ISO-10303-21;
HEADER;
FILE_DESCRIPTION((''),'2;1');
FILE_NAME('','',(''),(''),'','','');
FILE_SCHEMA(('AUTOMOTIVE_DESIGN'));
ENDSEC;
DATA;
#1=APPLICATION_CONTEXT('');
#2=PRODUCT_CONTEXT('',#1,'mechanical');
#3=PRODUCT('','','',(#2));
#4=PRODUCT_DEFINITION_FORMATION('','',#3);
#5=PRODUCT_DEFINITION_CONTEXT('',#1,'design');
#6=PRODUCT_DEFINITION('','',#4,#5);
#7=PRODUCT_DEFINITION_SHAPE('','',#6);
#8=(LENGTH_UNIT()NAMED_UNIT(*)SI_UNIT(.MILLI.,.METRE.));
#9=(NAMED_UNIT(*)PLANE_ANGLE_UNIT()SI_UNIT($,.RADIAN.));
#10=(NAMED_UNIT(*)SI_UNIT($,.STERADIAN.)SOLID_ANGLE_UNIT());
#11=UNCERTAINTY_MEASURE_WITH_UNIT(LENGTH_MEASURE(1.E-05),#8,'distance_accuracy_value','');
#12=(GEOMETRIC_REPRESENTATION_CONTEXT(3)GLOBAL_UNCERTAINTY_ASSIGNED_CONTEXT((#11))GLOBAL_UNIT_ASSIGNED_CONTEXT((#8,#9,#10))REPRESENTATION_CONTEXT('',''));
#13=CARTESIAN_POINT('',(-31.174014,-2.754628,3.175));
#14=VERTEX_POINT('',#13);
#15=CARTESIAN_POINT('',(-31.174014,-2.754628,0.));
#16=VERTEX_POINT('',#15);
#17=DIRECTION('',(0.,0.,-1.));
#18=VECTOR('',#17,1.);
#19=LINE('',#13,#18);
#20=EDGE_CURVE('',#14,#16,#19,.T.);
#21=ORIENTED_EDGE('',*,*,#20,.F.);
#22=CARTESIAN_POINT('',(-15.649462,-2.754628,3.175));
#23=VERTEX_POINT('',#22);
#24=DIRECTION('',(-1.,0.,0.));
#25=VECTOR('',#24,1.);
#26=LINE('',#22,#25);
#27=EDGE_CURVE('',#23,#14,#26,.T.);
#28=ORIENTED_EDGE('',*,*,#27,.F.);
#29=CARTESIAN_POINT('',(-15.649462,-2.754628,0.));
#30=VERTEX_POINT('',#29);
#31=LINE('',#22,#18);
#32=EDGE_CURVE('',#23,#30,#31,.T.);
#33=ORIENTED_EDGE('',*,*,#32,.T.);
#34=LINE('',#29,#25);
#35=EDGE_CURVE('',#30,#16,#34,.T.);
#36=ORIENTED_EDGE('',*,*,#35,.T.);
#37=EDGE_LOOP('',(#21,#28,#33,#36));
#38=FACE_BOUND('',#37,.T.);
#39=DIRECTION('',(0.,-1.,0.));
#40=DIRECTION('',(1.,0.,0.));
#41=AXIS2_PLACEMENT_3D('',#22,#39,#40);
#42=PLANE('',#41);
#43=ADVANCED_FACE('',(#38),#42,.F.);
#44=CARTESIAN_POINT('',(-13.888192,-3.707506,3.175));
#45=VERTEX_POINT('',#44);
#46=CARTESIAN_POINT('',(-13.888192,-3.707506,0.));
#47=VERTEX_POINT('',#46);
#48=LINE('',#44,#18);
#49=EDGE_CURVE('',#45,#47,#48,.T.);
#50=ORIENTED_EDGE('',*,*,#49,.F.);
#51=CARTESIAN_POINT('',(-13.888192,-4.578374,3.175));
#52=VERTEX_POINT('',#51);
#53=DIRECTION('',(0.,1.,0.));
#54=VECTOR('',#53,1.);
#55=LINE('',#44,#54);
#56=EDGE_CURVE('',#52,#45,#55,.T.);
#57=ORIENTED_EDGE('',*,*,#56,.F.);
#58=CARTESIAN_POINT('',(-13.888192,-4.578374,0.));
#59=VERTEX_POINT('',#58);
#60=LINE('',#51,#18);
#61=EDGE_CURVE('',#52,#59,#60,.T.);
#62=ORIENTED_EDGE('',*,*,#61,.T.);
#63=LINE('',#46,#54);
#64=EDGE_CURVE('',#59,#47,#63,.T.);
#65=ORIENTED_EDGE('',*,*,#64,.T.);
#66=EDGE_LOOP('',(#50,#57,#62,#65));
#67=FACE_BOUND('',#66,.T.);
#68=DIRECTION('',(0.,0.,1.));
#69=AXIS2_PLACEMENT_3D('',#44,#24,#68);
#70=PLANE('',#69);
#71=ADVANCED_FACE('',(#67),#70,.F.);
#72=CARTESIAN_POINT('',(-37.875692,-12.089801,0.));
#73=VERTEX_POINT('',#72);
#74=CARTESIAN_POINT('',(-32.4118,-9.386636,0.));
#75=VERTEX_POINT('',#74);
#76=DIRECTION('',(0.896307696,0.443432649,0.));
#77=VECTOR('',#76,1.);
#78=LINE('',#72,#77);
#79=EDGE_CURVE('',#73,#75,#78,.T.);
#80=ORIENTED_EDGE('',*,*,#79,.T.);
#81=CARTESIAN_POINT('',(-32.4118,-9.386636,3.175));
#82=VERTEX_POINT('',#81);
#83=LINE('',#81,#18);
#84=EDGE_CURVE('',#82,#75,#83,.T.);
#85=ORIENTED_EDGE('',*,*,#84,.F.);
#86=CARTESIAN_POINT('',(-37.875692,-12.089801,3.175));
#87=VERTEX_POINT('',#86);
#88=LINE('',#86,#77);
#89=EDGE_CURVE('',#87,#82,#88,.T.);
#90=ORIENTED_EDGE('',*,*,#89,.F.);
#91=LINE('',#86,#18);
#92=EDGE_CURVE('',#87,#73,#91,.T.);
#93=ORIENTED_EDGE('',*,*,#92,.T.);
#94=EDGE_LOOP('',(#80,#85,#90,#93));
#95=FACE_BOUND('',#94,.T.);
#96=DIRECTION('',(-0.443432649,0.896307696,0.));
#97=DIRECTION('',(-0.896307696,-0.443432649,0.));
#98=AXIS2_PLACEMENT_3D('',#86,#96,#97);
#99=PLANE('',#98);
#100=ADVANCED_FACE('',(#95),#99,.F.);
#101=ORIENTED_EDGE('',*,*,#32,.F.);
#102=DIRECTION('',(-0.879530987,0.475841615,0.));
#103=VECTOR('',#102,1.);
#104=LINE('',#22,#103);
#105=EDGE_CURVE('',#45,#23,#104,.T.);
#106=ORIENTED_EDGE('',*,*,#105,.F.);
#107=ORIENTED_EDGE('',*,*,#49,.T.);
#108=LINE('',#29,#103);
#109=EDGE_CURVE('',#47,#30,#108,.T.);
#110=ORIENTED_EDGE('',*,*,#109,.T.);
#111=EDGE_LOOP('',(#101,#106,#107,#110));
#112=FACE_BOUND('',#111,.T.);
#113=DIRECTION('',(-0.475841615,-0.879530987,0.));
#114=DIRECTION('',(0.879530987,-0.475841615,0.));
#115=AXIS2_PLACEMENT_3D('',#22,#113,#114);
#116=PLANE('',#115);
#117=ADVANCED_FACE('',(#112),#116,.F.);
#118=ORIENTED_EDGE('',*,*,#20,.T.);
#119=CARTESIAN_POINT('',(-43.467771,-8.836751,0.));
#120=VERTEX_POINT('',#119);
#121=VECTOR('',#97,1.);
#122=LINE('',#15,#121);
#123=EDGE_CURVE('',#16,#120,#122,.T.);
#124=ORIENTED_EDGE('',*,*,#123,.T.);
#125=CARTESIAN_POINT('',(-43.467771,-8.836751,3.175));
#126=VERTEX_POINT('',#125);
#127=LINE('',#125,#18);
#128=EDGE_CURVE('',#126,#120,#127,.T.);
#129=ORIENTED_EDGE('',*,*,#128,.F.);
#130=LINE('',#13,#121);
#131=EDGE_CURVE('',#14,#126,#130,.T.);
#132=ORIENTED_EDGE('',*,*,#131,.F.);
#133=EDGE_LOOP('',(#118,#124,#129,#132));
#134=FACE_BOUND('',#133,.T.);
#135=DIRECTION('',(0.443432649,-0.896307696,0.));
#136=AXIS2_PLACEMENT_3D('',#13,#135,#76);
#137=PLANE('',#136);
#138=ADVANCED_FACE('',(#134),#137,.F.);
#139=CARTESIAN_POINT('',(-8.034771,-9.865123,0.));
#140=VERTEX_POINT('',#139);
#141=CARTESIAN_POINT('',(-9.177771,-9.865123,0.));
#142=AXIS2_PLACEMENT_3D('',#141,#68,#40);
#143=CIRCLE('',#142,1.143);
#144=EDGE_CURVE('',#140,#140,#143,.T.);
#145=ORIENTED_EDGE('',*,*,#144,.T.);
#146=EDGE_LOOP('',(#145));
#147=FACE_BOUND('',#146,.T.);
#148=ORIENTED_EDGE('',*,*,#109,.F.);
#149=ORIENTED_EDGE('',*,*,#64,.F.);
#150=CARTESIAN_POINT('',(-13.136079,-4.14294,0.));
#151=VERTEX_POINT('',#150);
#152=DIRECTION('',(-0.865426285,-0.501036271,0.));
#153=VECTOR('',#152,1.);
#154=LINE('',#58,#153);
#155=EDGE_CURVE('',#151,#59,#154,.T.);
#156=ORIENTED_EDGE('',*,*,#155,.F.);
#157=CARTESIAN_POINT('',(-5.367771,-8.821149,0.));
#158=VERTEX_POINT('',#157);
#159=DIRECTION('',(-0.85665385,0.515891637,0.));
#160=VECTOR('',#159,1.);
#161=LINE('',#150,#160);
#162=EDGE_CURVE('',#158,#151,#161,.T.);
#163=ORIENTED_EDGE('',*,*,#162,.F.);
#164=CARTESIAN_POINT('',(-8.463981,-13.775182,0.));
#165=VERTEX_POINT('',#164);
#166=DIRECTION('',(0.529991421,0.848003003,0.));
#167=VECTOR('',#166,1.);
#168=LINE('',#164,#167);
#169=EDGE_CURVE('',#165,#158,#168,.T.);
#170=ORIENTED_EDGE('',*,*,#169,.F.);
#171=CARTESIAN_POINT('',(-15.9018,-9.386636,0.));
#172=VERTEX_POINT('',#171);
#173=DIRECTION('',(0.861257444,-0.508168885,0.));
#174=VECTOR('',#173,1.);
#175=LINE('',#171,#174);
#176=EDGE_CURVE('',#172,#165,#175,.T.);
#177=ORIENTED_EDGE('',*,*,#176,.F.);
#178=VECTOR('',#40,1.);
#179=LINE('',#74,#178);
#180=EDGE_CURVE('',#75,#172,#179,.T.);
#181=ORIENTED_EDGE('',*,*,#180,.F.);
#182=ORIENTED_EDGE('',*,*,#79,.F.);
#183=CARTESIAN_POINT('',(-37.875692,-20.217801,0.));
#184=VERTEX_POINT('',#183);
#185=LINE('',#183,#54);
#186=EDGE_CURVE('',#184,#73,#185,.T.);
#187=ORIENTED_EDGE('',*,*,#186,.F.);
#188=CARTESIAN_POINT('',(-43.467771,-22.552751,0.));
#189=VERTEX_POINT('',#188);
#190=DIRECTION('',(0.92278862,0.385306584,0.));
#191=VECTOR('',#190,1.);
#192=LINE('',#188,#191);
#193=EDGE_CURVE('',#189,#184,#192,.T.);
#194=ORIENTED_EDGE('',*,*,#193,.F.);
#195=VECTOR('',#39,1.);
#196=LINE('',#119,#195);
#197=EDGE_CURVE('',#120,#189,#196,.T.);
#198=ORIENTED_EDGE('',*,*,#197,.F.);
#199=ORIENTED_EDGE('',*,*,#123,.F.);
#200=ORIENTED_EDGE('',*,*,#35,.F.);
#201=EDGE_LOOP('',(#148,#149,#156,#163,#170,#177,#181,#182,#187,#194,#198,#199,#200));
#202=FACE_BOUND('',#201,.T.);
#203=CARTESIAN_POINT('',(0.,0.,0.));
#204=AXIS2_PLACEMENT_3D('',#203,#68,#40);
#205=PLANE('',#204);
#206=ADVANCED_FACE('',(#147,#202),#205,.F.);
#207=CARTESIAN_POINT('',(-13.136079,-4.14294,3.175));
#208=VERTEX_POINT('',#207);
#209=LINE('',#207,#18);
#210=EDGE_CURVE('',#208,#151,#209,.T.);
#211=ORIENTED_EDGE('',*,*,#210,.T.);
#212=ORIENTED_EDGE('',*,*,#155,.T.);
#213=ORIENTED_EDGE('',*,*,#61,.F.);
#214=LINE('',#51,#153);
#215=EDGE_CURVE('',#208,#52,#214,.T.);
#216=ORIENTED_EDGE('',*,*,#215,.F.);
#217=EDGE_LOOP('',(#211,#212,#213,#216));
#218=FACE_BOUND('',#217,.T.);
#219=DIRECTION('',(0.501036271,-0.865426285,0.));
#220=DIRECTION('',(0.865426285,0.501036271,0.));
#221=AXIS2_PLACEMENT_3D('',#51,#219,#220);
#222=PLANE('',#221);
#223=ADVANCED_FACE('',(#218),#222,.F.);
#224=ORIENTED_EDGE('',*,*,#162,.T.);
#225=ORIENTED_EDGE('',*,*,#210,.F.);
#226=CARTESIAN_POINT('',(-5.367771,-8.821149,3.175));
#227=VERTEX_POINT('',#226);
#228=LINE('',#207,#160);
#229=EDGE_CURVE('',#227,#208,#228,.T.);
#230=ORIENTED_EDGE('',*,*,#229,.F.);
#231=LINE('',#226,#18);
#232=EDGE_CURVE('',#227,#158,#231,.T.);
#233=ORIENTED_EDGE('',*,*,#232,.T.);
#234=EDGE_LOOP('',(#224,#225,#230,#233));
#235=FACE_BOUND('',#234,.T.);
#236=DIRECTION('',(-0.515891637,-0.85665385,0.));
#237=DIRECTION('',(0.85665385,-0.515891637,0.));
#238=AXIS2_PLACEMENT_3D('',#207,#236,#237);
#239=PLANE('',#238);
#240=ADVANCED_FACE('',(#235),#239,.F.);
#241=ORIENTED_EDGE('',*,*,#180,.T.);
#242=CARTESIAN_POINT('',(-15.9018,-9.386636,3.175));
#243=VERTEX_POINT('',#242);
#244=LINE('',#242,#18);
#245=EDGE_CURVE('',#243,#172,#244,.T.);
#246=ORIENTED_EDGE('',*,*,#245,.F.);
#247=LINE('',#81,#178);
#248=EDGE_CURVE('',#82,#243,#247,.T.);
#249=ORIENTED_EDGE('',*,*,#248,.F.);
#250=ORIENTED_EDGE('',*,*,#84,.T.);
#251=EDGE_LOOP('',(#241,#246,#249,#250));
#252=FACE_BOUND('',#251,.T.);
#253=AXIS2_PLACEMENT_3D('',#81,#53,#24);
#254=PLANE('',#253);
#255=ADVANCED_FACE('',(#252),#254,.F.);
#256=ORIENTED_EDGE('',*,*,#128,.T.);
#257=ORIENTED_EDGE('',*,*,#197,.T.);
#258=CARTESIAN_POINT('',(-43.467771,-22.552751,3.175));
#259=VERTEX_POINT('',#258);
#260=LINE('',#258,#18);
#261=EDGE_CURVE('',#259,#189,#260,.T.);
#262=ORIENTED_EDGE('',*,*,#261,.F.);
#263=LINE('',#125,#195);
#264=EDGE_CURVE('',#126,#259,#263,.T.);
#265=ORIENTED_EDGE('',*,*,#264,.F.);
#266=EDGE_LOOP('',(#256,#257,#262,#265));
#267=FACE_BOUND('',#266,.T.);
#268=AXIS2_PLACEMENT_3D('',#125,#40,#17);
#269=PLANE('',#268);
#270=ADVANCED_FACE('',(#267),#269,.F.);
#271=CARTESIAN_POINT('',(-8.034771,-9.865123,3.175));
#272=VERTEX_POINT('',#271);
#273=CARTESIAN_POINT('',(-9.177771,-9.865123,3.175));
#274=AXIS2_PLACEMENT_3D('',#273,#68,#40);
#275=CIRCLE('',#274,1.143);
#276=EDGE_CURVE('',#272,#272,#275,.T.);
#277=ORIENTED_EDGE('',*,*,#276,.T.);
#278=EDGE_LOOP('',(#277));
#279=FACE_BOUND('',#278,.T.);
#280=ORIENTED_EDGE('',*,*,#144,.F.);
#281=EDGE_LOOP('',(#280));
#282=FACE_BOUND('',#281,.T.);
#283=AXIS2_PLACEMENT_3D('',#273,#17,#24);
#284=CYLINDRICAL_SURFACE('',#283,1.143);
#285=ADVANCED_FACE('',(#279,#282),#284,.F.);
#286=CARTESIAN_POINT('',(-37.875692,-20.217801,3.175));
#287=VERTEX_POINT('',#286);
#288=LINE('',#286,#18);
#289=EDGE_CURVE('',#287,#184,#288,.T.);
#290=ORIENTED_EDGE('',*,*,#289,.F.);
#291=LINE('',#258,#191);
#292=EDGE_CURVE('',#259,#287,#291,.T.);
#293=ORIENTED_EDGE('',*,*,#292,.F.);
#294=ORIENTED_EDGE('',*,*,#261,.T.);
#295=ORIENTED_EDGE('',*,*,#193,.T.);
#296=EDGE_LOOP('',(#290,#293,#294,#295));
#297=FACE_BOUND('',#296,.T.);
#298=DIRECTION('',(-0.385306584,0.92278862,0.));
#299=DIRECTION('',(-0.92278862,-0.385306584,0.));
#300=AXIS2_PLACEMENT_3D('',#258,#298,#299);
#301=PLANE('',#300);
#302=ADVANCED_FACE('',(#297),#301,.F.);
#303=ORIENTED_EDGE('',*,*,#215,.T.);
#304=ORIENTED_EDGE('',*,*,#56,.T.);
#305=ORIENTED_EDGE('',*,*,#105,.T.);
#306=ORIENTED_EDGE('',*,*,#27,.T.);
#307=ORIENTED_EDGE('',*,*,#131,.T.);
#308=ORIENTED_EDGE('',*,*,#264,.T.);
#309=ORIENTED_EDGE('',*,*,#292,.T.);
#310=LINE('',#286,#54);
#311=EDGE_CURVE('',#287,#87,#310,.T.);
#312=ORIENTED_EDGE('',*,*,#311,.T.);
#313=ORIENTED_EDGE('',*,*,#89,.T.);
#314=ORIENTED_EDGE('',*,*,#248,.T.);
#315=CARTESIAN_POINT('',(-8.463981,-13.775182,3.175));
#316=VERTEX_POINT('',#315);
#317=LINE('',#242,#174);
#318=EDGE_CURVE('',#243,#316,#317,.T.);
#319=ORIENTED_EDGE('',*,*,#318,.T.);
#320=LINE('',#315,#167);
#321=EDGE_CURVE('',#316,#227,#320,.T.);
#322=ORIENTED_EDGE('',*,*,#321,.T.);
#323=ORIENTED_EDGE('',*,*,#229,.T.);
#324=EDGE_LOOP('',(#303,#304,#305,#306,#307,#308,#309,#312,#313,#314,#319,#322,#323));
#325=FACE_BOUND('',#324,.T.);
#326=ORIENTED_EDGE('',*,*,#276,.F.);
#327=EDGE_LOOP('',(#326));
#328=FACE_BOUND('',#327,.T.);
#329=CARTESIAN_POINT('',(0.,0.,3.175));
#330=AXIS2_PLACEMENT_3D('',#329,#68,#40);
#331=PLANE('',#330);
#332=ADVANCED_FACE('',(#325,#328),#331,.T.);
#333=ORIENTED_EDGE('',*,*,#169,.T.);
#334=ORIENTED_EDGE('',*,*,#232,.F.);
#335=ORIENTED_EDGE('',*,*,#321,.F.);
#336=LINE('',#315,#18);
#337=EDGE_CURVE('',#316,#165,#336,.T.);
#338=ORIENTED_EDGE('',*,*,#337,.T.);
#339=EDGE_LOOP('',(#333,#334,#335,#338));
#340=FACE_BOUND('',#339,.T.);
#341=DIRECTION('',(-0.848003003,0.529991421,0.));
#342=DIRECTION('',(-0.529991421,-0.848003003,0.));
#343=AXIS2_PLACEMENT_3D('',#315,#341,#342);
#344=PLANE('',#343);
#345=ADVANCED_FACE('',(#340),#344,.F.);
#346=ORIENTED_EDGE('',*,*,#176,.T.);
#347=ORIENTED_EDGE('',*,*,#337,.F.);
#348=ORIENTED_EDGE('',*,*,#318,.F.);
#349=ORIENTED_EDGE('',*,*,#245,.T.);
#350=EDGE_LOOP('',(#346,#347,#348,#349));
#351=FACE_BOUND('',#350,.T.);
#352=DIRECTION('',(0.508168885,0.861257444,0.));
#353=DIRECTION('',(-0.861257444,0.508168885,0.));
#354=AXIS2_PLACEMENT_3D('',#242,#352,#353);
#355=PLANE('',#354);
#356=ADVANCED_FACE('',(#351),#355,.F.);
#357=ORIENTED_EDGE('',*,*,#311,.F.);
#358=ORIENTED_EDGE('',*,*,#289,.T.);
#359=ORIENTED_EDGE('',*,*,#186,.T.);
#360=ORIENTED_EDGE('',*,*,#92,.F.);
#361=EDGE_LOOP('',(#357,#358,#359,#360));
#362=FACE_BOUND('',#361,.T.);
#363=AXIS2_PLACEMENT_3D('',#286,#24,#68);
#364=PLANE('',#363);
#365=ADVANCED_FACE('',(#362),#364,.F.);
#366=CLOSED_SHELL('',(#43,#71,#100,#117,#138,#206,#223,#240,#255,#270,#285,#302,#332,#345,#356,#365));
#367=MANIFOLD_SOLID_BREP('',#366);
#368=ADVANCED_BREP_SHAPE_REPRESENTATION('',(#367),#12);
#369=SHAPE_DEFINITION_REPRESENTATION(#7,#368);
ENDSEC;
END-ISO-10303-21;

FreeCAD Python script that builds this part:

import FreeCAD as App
import Part
import Sketcher
Q = App.Units.Quantity


def add_polygon(sketch, points):
    """Adds a closed chain of lines whose ends are joined by coincident constraints."""
    first, n = sketch.GeometryCount, len(points)
    for a, b in zip(points, points[1:] + points[:1]):
        sketch.addGeometry(Part.LineSegment(App.Vector(*a, 0), App.Vector(*b, 0)), False)
    for i in range(n):
        sketch.addConstraint(Sketcher.Constraint("Coincident", first + i, 2, first + (i + 1) % n, 1))

doc = App.newDocument("Part")
body = doc.addObject("PartDesign::Body", "Body")

# Sketch on XY plane
sketch1 = body.newObject("Sketcher::SketchObject", "Sketch")
sketch1.AttachmentSupport = (doc.getObject("XY_Plane"), [""])
sketch1.MapMode = "FlatFace"
add_polygon(sketch1, [(-13.9, -3.7), (-15.6, -2.8), (-31.2, -2.8), (-43.5, -8.8), (-43.5, -22.6), (-37.9, -20.2), (-37.9, -12.1), (-32.4, -9.4), (-15.9, -9.4), (-8.5, -13.8), (-5.4, -8.8), (-13.1, -4.1), (-13.9, -4.6)])  # lines 0-12
sketch1.addGeometry(Part.Circle(App.Vector(-9.2, -9.9, 0), App.Vector(0, 0, 1), 1.1), False)  # 13
sketch1.addConstraint(Sketcher.Constraint("Horizontal", 1))
sketch1.addConstraint(Sketcher.Constraint("Vertical", 3))
sketch1.addConstraint(Sketcher.Constraint("Vertical", 5))
sketch1.addConstraint(Sketcher.Constraint("Horizontal", 7))
sketch1.addConstraint(Sketcher.Constraint("Vertical", 12))
sketch1.addConstraint(Sketcher.Constraint("Parallel", 2, 6))
sketch1.addConstraint(Sketcher.Constraint("Diameter", 13, Q("0.09 in")))
sketch1.addConstraint(Sketcher.Constraint("DistanceX", 7, 1, 7, 2, Q("0.65 in")))
sketch1.addConstraint(Sketcher.Constraint("DistanceY", 3, 2, 3, 1, Q("0.54 in")))
sketch1.addConstraint(Sketcher.Constraint("DistanceY", 5, 1, 5, 2, Q("0.32 in")))
sketch1.addConstraint(Sketcher.Constraint("Distance", 2, Q("0.54 in")))
sketch1.addConstraint(Sketcher.Constraint("Distance", 6, Q("0.24 in")))
sketch1.addConstraint(Sketcher.Constraint("Distance", 8, Q("0.34 in")))
sketch1.addConstraint(Sketcher.Constraint("Distance", 9, Q("0.23 in")))
sketch1.addConstraint(Sketcher.Constraint("DistanceX", 2, 2, 13, 3, Q("1.35 in")))
sketch1.addConstraint(Sketcher.Constraint("DistanceX", 13, 3, 9, 2, Q("0.15 in")))
sketch1.addConstraint(Sketcher.Constraint("Distance", 10, Q("9.0682 mm")))
sketch1.addConstraint(Sketcher.Constraint("DistanceY", 4, 2, -1, 1, Q("20.217801 mm")))
sketch1.addConstraint(Sketcher.Constraint("DistanceX", 6, 2, -1, 1, Q("32.4118 mm")))
sketch1.addConstraint(Sketcher.Constraint("DistanceX", 10, 2, 8, 2, Q("4.672099 mm")))
sketch1.addConstraint(Sketcher.Constraint("Distance", 0, Q("2.00251 mm")))
sketch1.addConstraint(Sketcher.Constraint("Distance", 4, Q("6.059978 mm")))
sketch1.addConstraint(Sketcher.Constraint("DistanceX", 1, 2, 1, 1, Q("15.524552 mm")))
sketch1.addConstraint(Sketcher.Constraint("DistanceY", 12, 1, 12, 2, Q("0.870867 mm")))
sketch1.addConstraint(Sketcher.Constraint("DistanceX", 13, 3, -1, 1, Q("9.177771 mm")))
sketch1.addConstraint(Sketcher.Constraint("DistanceY", 0, 2, -1, 1, Q("2.754628 mm")))
sketch1.addConstraint(Sketcher.Constraint("DistanceX", 8, 2, -1, 1, Q("8.463981 mm")))
sketch1.addConstraint(Sketcher.Constraint("DistanceY", 4, 2, 13, 3, Q("10.352678 mm")))
sketch1.addConstraint(Sketcher.Constraint("DistanceX", 0, 2, 11, 2, Q("1.76127 mm")))
pad1 = body.newObject("PartDesign::Pad", "Pad")
pad1.Profile = sketch1
pad1.Length = Q("0.125 in")

doc.recompute()
